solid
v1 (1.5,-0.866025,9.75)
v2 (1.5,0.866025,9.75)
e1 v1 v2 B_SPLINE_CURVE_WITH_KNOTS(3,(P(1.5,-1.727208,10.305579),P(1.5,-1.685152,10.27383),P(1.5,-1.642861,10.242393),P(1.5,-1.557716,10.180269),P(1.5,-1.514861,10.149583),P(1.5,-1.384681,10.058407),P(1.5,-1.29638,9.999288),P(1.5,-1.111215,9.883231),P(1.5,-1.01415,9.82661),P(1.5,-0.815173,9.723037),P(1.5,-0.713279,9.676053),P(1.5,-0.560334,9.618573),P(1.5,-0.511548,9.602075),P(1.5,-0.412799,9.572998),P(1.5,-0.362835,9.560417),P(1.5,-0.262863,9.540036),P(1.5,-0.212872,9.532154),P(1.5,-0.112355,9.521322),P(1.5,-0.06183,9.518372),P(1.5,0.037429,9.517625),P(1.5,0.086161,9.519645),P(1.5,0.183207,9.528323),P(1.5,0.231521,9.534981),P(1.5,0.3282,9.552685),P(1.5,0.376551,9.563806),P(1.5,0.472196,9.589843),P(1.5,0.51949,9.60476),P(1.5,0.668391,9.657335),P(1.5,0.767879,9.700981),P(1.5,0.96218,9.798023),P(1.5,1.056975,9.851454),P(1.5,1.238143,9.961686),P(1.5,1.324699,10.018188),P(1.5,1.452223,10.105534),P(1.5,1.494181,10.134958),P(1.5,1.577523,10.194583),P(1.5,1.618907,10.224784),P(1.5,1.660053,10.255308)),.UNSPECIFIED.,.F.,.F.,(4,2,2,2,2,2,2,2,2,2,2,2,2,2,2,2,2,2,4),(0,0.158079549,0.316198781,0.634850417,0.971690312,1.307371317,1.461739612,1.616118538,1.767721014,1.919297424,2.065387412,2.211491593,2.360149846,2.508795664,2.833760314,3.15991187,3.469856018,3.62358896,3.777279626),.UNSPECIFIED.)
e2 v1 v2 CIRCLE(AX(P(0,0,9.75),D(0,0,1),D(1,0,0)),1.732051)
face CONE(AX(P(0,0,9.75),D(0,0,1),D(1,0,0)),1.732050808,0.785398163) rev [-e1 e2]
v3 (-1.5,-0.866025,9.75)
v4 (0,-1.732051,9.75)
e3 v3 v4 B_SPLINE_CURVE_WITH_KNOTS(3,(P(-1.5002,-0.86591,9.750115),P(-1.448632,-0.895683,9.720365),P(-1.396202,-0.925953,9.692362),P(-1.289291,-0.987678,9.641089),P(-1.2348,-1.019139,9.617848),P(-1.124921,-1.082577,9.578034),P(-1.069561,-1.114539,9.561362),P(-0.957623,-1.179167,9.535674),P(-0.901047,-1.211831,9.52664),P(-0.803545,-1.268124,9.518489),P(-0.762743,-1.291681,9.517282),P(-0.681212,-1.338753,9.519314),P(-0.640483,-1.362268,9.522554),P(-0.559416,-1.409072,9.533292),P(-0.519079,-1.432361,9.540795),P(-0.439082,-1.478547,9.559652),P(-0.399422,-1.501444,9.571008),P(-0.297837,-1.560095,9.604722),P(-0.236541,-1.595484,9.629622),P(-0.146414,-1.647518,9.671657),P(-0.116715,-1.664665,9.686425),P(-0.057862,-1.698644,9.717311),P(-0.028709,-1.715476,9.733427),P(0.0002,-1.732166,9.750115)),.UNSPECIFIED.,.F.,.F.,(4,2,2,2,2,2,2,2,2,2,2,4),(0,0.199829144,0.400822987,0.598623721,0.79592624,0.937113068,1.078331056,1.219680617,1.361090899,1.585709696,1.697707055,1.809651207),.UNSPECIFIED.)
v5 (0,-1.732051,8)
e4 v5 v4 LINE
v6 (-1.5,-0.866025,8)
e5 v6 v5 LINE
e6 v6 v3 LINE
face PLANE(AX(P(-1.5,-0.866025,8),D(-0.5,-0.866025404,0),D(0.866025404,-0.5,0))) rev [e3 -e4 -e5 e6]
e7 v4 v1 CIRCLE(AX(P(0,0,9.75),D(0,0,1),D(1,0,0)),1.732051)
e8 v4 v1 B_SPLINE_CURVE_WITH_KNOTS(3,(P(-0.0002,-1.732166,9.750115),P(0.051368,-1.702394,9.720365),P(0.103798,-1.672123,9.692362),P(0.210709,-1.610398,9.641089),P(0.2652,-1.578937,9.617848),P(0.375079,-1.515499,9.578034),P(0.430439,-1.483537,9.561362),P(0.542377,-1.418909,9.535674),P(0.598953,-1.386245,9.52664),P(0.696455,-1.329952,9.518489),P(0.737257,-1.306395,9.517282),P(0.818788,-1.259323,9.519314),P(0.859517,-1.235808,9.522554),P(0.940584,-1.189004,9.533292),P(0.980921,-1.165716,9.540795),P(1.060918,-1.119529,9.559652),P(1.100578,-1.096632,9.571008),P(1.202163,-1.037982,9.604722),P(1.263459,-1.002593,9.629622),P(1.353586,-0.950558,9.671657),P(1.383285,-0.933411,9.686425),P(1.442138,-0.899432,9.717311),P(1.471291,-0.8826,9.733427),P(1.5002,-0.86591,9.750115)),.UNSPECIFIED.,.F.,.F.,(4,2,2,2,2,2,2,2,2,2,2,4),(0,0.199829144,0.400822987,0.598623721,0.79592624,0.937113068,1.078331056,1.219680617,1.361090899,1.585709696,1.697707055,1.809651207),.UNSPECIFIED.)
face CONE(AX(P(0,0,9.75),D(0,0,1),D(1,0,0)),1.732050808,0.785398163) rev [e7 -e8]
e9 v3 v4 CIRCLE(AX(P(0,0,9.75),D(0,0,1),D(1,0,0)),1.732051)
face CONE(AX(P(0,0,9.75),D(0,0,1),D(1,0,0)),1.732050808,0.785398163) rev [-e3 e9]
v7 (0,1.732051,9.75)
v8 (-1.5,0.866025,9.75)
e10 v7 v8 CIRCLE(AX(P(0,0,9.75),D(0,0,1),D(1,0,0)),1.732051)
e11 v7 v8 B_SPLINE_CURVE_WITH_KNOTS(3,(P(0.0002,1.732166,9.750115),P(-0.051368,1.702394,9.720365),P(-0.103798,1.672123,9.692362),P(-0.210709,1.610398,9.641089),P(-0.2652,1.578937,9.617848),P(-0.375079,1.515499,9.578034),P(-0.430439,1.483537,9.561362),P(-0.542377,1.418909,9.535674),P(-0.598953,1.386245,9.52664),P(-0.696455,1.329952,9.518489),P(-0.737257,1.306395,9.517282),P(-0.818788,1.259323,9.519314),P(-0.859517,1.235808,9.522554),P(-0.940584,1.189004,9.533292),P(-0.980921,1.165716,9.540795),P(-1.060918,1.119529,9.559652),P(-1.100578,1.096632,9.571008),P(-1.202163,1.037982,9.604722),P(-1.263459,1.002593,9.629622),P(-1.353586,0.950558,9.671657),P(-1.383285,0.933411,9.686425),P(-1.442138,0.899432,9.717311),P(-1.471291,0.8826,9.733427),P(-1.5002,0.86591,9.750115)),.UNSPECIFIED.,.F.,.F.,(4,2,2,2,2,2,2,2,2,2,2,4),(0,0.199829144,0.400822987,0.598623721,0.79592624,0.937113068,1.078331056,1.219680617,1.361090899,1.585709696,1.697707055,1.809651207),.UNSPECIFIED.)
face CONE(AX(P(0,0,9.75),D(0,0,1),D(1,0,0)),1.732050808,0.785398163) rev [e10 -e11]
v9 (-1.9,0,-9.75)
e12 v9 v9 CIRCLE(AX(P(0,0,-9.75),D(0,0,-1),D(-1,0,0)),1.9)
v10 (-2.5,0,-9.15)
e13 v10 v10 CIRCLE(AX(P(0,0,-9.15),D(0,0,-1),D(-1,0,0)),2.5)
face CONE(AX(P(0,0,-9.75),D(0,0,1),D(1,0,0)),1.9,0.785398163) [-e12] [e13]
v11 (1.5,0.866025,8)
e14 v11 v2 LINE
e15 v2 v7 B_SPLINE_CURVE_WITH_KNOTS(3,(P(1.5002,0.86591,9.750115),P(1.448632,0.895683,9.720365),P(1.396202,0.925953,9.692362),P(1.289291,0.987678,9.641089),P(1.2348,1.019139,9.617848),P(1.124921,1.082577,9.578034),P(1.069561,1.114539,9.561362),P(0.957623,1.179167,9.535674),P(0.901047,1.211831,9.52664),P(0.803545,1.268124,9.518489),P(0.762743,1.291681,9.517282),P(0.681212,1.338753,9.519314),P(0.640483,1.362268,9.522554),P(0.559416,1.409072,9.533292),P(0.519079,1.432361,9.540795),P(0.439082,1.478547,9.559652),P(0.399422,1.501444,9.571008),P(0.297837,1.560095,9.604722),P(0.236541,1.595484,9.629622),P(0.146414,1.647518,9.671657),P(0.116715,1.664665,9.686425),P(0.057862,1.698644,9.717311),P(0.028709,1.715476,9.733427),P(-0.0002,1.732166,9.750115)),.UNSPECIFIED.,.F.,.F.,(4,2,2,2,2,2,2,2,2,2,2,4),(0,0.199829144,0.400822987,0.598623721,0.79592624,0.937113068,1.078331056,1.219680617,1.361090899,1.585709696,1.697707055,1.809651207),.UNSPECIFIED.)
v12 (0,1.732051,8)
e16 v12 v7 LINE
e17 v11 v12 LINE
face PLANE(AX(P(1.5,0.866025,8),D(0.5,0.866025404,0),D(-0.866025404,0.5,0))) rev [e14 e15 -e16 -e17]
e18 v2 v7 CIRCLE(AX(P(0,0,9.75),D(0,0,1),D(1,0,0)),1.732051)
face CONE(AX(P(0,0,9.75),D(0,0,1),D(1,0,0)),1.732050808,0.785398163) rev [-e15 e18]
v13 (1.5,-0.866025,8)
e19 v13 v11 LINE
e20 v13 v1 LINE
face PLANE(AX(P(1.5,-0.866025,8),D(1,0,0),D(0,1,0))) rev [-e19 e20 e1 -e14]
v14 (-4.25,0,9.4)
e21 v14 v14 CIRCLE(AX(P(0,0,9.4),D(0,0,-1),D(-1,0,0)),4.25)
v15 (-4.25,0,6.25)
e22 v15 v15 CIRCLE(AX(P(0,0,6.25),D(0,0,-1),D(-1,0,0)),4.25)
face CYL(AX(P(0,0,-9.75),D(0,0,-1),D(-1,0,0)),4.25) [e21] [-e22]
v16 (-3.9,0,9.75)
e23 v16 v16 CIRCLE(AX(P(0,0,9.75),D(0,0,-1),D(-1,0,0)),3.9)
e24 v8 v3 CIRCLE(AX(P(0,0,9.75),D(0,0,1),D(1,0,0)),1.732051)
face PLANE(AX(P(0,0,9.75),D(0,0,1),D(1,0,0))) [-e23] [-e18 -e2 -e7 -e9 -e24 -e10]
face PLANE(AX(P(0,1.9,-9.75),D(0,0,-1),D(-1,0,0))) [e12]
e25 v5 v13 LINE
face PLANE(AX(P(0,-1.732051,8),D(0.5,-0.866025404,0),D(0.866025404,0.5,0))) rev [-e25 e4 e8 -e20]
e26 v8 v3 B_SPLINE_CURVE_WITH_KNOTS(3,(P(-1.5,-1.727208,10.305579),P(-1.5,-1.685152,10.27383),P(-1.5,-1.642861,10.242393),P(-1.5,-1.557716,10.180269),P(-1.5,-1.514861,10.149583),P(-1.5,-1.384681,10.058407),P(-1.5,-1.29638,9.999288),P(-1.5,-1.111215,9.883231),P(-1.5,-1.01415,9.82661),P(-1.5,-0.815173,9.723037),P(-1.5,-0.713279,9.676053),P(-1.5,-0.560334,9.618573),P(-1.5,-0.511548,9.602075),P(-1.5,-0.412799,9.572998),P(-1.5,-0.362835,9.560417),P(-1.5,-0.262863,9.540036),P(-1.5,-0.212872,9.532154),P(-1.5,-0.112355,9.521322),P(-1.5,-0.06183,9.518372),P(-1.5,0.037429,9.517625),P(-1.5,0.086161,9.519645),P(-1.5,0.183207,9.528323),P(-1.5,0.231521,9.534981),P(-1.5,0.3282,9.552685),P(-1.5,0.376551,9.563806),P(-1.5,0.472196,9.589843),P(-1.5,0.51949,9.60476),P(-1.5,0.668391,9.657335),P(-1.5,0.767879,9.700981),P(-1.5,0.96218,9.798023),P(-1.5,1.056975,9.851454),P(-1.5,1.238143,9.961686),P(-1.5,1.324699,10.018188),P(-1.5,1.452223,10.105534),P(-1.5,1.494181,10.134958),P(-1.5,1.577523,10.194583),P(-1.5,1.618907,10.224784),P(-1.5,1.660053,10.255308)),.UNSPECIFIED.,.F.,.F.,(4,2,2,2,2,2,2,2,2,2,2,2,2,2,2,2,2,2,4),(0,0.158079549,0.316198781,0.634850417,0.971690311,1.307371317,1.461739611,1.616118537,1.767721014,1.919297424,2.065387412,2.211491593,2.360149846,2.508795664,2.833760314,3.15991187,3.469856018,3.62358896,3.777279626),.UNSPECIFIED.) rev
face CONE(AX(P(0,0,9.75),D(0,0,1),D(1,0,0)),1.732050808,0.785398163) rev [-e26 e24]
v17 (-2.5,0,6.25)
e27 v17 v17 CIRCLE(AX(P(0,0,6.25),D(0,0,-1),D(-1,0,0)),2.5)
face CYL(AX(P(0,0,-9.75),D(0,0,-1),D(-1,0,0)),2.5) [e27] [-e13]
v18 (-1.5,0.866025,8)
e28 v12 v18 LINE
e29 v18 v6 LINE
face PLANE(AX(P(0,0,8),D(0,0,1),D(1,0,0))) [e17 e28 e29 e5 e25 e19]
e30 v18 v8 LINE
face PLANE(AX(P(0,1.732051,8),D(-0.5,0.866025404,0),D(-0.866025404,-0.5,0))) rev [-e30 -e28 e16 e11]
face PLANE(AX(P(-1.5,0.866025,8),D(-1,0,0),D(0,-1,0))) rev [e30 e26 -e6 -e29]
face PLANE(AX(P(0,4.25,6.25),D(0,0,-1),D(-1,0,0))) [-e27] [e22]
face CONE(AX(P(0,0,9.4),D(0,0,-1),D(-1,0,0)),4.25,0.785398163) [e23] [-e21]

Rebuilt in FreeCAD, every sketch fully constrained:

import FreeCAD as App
import Part
import Sketcher
from FreeCAD import Vector
Q = App.Units.Quantity

doc = App.newDocument("Part")
params = doc.addObject("Spreadsheet::Sheet", "Params")
for row, (alias, value) in enumerate([
    ("sketch1_width", "3.9 mm"),
    ("sketch1_width2", "1.9 mm"),
    ("sketch1_height", "19.5 mm"),
    ("sketch1_height2", "15.4 mm"),
    ("sketch1_width3", "1.75 mm"),
    ("revolution_angle", "360 deg"),
    ("pocket1_length", "1.75 mm"),
    ("groove_angle", "360 deg"),
], start=1):
    params.set(f"A{row}", alias)
    params.set(f"B{row}", "=" + value)
    params.setAlias(f"B{row}", alias)

body = doc.addObject("PartDesign::Body", "Body")

sketch1 = body.newObject("Sketcher::SketchObject", "Sketch")
sketch1.AttachmentSupport = (doc.getObject("YZ_Plane"), [""])
sketch1.MapMode = "FlatFace"
sketch1.addGeometry(Part.LineSegment(Vector(3.9, 9.75, 0), Vector(0, 9.75, 0)), False)
sketch1.addGeometry(Part.LineSegment(Vector(0, 9.75, 0), Vector(0, -9.75, 0)), False)
sketch1.addGeometry(Part.LineSegment(Vector(0, -9.75, 0), Vector(1.9, -9.75, 0)), False)
sketch1.addGeometry(Part.LineSegment(Vector(1.9, -9.75, 0), Vector(2.5, -9.15, 0)), False)
sketch1.addGeometry(Part.LineSegment(Vector(2.5, -9.15, 0), Vector(2.5, 6.25, 0)), False)
sketch1.addGeometry(Part.LineSegment(Vector(2.5, 6.25, 0), Vector(4.25, 6.25, 0)), False)
sketch1.addGeometry(Part.LineSegment(Vector(4.25, 6.25, 0), Vector(4.25, 9.4, 0)), False)
sketch1.addGeometry(Part.LineSegment(Vector(4.25, 9.4, 0), Vector(3.9, 9.75, 0)), False)
sketch1.addConstraint(Sketcher.Constraint("Coincident", 0, 2, 1, 1))
sketch1.addConstraint(Sketcher.Constraint("Coincident", 1, 2, 2, 1))
sketch1.addConstraint(Sketcher.Constraint("Coincident", 2, 2, 3, 1))
sketch1.addConstraint(Sketcher.Constraint("Coincident", 3, 2, 4, 1))
sketch1.addConstraint(Sketcher.Constraint("Coincident", 4, 2, 5, 1))
sketch1.addConstraint(Sketcher.Constraint("Coincident", 5, 2, 6, 1))
sketch1.addConstraint(Sketcher.Constraint("Coincident", 6, 2, 7, 1))
sketch1.addConstraint(Sketcher.Constraint("Coincident", 7, 2, 0, 1))
sketch1.addConstraint(Sketcher.Constraint("Horizontal", 0))
sketch1.addConstraint(Sketcher.Constraint("Vertical", 1))
sketch1.addConstraint(Sketcher.Constraint("Horizontal", 2))
sketch1.addConstraint(Sketcher.Constraint("Vertical", 4))
sketch1.addConstraint(Sketcher.Constraint("Horizontal", 5))
sketch1.addConstraint(Sketcher.Constraint("Vertical", 6))
sketch1.addConstraint(Sketcher.Constraint("Symmetric", 0, 2, 1, 2, -1, 1))
sketch1.addConstraint(Sketcher.Constraint("Perpendicular", 3, 7))
sketch1.addConstraint(Sketcher.Constraint("Angle", 3, Q("45 deg")))
sketch1.addConstraint(Sketcher.Constraint("DistanceX", 0, 2, 0, 1, 3.9))
sketch1.addConstraint(Sketcher.Constraint("DistanceX", 2, 1, 2, 2, 1.9))
sketch1.addConstraint(Sketcher.Constraint("DistanceY", 1, 2, 1, 1, 19.5))
sketch1.addConstraint(Sketcher.Constraint("DistanceY", 4, 1, 4, 2, 15.4))
sketch1.addConstraint(Sketcher.Constraint("DistanceY", 2, 2, 4, 2, 16.0))
sketch1.addConstraint(Sketcher.Constraint("DistanceX", 5, 1, 5, 2, 1.75))
sketch1.setExpression("Constraints[17]", "Params.sketch1_width")
sketch1.setExpression("Constraints[18]", "Params.sketch1_width2")
sketch1.setExpression("Constraints[19]", "Params.sketch1_height")
sketch1.setExpression("Constraints[20]", "Params.sketch1_height2")
sketch1.setExpression("Constraints[22]", "Params.sketch1_width3")
revolution = body.newObject("PartDesign::Revolution", "Revolution")
revolution.Profile = sketch1
revolution.ReferenceAxis = (sketch1, ["V_Axis"])
revolution.setExpression("Angle", "Params.revolution_angle")

sketch2 = body.newObject("Sketcher::SketchObject", "Sketch001")
sketch2.AttachmentSupport = (doc.getObject("XY_Plane"), [""])
sketch2.MapMode = "FlatFace"
sketch2.AttachmentOffset = App.Placement(Vector(0, 0, 9.75), App.Rotation())
sketch2.addGeometry(Part.LineSegment(Vector(1.5, -0.9, 0), Vector(1.5, 0.9, 0)), False)
sketch2.addGeometry(Part.LineSegment(Vector(1.5, 0.9, 0), Vector(0, 1.7, 0)), False)
sketch2.addGeometry(Part.LineSegment(Vector(0, 1.7, 0), Vector(-1.5, 0.9, 0)), False)
sketch2.addGeometry(Part.LineSegment(Vector(-1.5, 0.9, 0), Vector(-1.5, -0.9, 0)), False)
sketch2.addGeometry(Part.LineSegment(Vector(-1.5, -0.9, 0), Vector(0, -1.7, 0)), False)
sketch2.addGeometry(Part.LineSegment(Vector(0, -1.7, 0), Vector(1.5, -0.9, 0)), False)
sketch2.addConstraint(Sketcher.Constraint("Coincident", 0, 2, 1, 1))
sketch2.addConstraint(Sketcher.Constraint("Coincident", 1, 2, 2, 1))
sketch2.addConstraint(Sketcher.Constraint("Coincident", 2, 2, 3, 1))
sketch2.addConstraint(Sketcher.Constraint("Coincident", 3, 2, 4, 1))
sketch2.addConstraint(Sketcher.Constraint("Coincident", 4, 2, 5, 1))
sketch2.addConstraint(Sketcher.Constraint("Coincident", 5, 2, 0, 1))
sketch2.addConstraint(Sketcher.Constraint("Vertical", 0))
sketch2.addConstraint(Sketcher.Constraint("Vertical", 3))
sketch2.addConstraint(Sketcher.Constraint("Symmetric", 0, 2, 3, 2, -1, 1))
sketch2.addConstraint(Sketcher.Constraint("Symmetric", 1, 2, 4, 2, -1, 1))
sketch2.addConstraint(Sketcher.Constraint("PointOnObject", 1, 2, -2))
sketch2.addConstraint(Sketcher.Constraint("Parallel", 2, 5))
sketch2.addConstraint(Sketcher.Constraint("Horizontal", 0, 2, 2, 2))
sketch2.addConstraint(Sketcher.Constraint("Angle", 1, Q("150 deg")))
sketch2.addConstraint(Sketcher.Constraint("DistanceX", 2, 2, 0, 2, 3.0))
sketch2.addConstraint(Sketcher.Constraint("DistanceY", 0, 1, 0, 2, 1.732051))
pocket1 = body.newObject("PartDesign::Pocket", "Pocket")
pocket1.Profile = sketch2
pocket1.setExpression("Length", "Params.pocket1_length")

sketch3 = body.newObject("Sketcher::SketchObject", "Sketch002")
sketch3.AttachmentSupport = (doc.getObject("YZ_Plane"), [""])
sketch3.MapMode = "FlatFace"
sketch3.addGeometry(Part.LineSegment(Vector(0, 9.8, 0), Vector(-1.7, 9.8, 0)), False)
sketch3.addGeometry(Part.LineSegment(Vector(-1.7, 9.8, 0), Vector(0, 8, 0)), False)
sketch3.addGeometry(Part.LineSegment(Vector(0, 8, 0), Vector(0, 9.8, 0)), False)
sketch3.addConstraint(Sketcher.Constraint("Coincident", 0, 2, 1, 1))
sketch3.addConstraint(Sketcher.Constraint("Coincident", 1, 2, 2, 1))
sketch3.addConstraint(Sketcher.Constraint("Coincident", 2, 2, 0, 1))
sketch3.addConstraint(Sketcher.Constraint("Horizontal", 0))
sketch3.addConstraint(Sketcher.Constraint("Vertical", 2))
sketch3.addConstraint(Sketcher.Constraint("PointOnObject", 1, 2, -2))
sketch3.addConstraint(Sketcher.Constraint("Equal", 0, 2))
sketch3.addConstraint(Sketcher.Constraint("DistanceY", -1, 1, 0, 2, 9.75))
sketch3.addConstraint(Sketcher.Constraint("DistanceX", 0, 2, 0, 1, 1.732051))
groove = body.newObject("PartDesign::Groove", "Groove")
groove.Profile = sketch3
groove.ReferenceAxis = (sketch3, ["V_Axis"])
groove.setExpression("Angle", "Params.groove_angle")

doc.recompute()
